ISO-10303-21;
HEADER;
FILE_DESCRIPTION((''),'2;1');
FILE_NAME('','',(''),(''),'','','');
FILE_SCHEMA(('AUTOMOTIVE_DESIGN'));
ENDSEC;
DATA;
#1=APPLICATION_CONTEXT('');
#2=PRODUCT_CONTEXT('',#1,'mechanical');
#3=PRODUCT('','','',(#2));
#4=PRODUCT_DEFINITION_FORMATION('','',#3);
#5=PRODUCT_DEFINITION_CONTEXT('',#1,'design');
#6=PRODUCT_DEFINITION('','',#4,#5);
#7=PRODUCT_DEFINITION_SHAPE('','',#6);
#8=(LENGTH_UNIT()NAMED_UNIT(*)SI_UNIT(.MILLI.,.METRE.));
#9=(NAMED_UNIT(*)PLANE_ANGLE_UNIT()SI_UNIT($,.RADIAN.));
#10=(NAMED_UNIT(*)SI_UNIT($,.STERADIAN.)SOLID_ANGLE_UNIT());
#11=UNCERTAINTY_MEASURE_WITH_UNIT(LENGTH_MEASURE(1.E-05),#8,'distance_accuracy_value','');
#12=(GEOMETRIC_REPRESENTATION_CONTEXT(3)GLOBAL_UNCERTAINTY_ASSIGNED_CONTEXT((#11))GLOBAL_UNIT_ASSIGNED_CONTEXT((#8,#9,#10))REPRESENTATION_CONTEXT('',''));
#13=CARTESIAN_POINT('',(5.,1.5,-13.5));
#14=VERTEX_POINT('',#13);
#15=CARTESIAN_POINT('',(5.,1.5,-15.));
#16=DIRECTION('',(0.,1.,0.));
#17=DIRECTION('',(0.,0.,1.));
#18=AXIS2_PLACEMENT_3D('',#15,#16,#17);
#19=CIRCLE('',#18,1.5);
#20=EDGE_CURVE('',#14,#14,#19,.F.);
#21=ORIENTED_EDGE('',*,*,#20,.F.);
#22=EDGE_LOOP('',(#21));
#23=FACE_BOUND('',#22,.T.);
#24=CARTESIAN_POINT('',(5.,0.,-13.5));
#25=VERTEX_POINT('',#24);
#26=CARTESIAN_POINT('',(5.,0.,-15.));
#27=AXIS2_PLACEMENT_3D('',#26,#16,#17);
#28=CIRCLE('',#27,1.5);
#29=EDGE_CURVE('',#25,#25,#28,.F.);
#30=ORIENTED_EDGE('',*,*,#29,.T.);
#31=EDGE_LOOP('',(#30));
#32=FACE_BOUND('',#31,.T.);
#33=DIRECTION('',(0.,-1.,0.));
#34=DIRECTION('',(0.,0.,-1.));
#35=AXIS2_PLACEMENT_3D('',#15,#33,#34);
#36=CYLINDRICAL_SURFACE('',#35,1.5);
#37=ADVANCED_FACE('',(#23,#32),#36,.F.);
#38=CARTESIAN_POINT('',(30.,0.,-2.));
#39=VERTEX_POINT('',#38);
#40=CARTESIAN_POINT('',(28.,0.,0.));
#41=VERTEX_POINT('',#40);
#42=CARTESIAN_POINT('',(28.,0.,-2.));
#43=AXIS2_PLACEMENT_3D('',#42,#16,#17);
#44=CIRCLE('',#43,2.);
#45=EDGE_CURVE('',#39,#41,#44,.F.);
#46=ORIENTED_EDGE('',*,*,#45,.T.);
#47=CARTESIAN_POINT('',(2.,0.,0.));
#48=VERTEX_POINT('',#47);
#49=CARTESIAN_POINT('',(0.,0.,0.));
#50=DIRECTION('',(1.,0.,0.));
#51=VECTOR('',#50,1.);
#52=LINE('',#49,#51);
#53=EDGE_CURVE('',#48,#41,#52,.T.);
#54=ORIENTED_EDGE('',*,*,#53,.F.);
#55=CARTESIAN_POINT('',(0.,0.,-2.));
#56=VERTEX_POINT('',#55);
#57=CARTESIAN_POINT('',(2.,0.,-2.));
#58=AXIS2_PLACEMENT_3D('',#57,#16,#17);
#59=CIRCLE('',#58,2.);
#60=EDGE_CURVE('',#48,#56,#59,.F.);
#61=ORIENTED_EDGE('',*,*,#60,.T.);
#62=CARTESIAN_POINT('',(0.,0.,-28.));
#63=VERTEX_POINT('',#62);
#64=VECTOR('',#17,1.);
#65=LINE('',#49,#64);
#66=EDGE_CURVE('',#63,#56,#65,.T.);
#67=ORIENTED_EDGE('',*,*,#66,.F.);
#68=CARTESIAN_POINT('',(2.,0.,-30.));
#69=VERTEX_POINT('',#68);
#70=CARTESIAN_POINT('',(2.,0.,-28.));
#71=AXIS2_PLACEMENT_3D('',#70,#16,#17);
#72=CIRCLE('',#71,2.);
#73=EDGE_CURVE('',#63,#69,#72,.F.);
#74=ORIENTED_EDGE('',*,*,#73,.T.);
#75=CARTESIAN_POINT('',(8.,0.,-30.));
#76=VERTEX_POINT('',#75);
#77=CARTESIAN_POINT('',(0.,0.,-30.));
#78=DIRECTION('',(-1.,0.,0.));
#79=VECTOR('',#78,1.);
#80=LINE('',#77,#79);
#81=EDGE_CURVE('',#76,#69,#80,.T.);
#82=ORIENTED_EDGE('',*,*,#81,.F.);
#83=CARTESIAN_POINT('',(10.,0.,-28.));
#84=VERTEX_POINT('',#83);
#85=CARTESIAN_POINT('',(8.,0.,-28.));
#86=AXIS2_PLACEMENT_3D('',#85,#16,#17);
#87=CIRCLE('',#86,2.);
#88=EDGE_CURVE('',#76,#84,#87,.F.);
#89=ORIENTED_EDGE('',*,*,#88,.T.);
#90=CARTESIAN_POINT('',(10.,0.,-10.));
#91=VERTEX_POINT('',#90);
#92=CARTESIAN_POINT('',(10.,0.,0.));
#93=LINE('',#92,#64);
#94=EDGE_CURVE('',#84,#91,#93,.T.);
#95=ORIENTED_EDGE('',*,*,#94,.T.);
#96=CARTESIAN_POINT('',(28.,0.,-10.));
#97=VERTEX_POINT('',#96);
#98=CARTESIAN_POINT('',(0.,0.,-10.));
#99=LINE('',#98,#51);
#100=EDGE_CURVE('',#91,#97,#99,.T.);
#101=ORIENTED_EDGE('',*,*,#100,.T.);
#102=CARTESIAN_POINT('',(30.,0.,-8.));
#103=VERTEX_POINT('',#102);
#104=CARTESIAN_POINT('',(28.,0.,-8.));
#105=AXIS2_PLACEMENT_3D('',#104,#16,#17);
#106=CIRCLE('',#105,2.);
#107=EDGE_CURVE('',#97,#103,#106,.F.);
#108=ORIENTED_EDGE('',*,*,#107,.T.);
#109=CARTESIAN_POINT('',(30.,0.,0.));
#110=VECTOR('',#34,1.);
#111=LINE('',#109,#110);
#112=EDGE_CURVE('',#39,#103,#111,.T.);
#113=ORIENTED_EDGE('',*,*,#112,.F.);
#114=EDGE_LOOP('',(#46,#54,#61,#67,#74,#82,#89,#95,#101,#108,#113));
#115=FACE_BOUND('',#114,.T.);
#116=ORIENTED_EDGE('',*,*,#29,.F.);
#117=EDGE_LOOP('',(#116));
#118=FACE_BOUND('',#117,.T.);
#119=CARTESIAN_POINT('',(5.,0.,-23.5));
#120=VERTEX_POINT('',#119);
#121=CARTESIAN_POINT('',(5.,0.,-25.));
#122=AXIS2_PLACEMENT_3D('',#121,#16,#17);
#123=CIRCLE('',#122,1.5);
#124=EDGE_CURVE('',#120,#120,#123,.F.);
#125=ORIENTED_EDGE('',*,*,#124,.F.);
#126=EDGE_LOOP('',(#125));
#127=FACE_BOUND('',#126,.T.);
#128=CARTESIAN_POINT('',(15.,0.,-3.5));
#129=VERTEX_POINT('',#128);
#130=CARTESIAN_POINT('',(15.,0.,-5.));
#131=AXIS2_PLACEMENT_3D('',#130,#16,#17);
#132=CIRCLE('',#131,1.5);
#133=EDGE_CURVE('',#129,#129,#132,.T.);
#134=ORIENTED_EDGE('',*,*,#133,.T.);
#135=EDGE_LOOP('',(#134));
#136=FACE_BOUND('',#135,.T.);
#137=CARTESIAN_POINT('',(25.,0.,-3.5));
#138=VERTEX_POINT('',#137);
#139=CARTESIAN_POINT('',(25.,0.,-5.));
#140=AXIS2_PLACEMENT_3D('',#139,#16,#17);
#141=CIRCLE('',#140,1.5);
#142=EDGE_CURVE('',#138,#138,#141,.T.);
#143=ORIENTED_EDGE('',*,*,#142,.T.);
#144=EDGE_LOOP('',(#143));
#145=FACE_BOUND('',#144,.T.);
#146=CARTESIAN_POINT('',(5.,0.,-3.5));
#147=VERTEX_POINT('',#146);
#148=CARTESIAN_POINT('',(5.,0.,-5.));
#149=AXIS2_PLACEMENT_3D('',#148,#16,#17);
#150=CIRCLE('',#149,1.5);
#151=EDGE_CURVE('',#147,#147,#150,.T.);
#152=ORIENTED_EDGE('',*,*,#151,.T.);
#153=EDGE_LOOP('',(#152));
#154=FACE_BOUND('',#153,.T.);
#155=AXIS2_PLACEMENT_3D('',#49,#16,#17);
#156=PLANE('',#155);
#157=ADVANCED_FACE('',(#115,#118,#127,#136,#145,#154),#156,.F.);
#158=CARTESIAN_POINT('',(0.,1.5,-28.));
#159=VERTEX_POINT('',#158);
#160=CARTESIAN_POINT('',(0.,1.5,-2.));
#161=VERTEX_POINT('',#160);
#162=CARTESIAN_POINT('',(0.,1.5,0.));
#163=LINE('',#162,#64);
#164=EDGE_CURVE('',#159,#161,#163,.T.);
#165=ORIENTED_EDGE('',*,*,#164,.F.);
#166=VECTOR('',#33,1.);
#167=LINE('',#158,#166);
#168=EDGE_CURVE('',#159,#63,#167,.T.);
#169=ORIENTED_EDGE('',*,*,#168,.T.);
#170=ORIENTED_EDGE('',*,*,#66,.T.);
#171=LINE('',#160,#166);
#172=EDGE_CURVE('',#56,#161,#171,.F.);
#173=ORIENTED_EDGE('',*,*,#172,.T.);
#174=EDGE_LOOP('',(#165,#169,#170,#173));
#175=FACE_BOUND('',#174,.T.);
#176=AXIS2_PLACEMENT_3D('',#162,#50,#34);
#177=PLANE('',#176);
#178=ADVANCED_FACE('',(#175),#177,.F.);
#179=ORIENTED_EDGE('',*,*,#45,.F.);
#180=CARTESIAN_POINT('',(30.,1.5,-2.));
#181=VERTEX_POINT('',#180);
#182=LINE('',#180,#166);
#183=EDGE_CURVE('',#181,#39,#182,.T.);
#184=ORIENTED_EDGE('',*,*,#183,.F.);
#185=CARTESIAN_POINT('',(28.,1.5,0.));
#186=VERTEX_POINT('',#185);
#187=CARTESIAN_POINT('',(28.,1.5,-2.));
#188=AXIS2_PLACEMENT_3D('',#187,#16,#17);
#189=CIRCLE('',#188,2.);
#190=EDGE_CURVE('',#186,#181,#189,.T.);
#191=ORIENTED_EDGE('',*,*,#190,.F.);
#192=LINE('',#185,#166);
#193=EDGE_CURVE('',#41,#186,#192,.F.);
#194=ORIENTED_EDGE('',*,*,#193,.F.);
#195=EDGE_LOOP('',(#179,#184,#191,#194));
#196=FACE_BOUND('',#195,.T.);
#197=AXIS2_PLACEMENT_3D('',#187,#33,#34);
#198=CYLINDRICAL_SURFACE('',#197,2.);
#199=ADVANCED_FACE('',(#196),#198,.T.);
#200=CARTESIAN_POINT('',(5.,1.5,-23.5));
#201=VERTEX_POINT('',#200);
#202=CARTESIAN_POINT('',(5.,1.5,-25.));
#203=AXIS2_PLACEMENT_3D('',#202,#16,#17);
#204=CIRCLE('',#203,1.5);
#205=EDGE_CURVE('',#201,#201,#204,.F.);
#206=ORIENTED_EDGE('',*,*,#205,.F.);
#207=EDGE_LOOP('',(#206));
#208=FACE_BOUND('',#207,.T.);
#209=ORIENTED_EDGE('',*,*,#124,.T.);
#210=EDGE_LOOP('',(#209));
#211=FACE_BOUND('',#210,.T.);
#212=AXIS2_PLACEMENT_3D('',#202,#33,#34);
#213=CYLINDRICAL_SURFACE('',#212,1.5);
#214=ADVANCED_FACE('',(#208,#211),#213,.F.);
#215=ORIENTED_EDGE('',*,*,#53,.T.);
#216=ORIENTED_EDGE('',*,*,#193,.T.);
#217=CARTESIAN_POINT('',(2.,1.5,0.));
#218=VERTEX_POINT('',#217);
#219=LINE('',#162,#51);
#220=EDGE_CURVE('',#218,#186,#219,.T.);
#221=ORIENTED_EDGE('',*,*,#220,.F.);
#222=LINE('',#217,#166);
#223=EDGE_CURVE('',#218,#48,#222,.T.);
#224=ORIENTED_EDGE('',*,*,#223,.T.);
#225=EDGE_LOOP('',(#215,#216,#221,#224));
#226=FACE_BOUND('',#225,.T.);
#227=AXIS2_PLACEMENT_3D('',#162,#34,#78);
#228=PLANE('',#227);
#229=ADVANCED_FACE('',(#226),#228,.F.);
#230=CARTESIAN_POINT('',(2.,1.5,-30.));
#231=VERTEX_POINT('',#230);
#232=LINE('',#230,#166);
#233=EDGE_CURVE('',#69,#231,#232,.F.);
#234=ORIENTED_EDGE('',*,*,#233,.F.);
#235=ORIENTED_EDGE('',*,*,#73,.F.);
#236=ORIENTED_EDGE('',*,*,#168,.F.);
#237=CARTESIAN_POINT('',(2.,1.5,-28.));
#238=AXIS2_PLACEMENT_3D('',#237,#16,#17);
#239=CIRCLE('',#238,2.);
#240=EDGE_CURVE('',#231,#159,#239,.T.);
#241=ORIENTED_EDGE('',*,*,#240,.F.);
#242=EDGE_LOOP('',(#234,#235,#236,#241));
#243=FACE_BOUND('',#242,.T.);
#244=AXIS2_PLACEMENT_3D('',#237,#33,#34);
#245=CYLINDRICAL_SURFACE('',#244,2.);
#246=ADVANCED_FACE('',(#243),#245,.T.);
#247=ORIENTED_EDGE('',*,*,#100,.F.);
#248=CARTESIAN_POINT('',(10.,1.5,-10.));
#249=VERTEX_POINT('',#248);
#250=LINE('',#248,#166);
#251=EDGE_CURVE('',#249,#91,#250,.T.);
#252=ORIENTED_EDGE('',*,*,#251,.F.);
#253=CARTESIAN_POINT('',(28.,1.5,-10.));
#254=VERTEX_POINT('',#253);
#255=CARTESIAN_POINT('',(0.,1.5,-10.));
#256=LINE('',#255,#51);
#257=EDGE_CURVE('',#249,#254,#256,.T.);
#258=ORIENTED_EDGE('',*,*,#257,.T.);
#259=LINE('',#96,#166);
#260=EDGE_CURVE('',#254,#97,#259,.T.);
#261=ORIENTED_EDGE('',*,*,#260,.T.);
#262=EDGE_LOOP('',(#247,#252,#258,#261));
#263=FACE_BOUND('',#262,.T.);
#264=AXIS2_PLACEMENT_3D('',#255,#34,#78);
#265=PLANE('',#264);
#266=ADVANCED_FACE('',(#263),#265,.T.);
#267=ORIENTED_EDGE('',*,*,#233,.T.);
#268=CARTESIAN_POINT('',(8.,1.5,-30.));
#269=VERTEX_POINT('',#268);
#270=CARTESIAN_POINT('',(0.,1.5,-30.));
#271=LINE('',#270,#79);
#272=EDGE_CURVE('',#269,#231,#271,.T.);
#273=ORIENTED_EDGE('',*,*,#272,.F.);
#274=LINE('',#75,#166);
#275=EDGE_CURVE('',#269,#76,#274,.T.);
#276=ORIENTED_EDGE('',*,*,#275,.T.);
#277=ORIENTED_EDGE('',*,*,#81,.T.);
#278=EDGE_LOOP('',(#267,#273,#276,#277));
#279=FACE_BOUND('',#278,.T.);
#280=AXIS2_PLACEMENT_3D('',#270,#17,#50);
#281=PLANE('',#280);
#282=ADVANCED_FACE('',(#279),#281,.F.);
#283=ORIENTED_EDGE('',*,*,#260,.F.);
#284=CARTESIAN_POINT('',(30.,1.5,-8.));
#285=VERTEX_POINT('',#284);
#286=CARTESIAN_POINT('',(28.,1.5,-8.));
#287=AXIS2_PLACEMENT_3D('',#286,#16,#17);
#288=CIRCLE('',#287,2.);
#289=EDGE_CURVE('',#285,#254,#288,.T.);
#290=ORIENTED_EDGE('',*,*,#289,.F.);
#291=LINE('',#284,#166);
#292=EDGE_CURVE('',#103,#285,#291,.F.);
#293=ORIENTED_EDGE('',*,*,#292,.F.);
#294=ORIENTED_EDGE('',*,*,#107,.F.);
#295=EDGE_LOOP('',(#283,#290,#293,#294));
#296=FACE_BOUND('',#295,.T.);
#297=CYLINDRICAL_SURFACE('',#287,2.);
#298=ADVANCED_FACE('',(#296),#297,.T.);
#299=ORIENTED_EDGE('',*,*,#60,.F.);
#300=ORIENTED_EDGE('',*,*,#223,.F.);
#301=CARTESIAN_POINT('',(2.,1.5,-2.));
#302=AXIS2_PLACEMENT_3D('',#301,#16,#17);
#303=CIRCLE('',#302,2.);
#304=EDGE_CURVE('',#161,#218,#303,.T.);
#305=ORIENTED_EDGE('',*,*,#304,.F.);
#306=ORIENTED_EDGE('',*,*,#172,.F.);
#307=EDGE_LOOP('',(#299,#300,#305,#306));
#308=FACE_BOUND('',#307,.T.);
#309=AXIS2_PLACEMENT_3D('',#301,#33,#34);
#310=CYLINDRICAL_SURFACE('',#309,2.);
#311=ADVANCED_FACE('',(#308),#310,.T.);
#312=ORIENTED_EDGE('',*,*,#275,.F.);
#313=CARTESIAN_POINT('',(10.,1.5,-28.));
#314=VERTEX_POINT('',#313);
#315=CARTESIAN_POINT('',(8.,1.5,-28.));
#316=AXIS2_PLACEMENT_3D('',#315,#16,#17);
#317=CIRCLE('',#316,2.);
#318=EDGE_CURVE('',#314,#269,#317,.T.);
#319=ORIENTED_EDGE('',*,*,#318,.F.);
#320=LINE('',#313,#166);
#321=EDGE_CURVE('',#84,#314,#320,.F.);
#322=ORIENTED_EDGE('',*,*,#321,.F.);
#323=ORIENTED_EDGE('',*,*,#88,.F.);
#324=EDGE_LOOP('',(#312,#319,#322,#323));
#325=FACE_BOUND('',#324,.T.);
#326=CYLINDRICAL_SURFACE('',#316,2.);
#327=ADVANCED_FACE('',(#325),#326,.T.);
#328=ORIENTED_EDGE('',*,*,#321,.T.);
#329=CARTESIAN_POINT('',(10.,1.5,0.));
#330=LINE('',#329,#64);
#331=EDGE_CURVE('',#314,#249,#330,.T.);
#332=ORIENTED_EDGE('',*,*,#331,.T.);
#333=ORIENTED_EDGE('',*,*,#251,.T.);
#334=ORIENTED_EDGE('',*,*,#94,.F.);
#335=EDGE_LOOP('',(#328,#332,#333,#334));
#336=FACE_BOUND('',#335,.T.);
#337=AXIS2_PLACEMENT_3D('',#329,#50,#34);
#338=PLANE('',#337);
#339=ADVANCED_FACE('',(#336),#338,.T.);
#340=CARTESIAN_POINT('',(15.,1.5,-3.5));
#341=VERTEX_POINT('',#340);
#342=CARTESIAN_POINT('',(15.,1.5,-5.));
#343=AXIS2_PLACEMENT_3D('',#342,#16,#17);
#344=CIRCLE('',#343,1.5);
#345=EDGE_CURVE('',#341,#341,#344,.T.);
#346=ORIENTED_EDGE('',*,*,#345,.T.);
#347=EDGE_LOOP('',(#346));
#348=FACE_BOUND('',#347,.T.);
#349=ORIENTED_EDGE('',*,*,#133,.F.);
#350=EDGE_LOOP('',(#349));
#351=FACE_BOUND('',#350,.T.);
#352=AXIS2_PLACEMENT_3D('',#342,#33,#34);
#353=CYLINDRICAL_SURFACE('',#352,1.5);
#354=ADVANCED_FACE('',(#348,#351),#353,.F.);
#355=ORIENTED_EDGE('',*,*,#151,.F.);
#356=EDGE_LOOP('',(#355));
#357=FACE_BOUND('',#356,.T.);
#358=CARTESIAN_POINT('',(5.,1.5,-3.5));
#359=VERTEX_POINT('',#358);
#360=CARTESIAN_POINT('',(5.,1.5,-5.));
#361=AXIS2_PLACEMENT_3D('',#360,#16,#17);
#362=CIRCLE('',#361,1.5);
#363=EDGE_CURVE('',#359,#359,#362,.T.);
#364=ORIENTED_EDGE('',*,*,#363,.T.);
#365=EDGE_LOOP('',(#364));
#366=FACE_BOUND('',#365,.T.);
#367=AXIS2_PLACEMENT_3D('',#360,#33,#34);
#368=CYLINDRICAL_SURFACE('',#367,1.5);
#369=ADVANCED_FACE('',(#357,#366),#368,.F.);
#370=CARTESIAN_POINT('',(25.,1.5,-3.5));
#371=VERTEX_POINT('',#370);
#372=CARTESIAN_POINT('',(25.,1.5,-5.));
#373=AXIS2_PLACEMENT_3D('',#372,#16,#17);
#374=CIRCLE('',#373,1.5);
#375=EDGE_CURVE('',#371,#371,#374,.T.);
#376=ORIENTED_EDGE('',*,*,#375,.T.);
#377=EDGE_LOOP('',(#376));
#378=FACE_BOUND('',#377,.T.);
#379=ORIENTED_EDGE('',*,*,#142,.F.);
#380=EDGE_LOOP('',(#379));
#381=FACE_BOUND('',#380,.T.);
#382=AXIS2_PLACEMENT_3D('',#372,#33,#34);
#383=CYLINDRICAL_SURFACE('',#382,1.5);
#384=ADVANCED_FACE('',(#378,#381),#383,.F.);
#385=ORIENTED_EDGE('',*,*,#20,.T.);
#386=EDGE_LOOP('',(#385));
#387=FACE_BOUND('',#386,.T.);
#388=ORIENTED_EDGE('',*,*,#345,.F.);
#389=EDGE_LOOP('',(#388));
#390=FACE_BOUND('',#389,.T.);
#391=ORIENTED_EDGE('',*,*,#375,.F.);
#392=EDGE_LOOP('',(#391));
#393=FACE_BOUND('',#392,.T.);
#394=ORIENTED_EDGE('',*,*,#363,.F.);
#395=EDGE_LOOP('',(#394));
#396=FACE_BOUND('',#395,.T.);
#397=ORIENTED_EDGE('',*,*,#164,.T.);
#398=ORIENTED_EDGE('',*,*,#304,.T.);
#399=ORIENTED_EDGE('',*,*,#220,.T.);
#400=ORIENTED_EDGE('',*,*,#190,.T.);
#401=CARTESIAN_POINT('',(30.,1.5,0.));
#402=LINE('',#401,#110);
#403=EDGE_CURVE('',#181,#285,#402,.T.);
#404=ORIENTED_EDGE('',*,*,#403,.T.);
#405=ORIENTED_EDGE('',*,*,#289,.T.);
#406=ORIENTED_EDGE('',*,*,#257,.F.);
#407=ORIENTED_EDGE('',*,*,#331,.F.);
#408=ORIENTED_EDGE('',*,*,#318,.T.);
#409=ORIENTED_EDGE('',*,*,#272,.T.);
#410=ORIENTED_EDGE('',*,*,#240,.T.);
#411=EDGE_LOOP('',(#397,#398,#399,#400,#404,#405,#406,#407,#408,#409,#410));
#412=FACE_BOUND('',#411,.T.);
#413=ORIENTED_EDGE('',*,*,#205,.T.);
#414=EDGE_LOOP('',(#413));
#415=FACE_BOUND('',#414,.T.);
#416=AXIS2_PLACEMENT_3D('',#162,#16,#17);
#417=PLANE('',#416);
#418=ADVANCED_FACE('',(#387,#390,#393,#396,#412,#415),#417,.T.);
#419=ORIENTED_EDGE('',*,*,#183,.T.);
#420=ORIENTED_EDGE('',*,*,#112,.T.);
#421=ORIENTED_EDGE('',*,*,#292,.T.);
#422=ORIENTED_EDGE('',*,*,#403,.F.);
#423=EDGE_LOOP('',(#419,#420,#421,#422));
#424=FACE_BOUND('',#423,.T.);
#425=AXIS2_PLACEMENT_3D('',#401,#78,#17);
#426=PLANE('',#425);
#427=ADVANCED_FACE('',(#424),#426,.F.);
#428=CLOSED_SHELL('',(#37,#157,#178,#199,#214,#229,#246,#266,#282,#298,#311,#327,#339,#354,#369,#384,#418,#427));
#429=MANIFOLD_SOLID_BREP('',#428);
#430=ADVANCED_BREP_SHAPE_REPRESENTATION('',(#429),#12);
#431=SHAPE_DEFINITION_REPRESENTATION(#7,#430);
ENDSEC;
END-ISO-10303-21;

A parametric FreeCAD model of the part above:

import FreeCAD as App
import Part
import Sketcher

V = App.Vector


def edges_at(feature, points):
    """Names of the edges that pass closest to the given points."""
    edges = feature.Shape.Edges
    near = lambda p: min(range(len(edges)), key=lambda i: edges[i].distToShape(Part.Vertex(*p))[0])
    return sorted({f"Edge{near(p) + 1}" for p in points})


def add_polygon(sketch, points):
    """Adds a closed chain of lines whose ends are joined by coincident constraints."""
    first, n = sketch.GeometryCount, len(points)
    for a, b in zip(points, points[1:] + points[:1]):
        sketch.addGeometry(Part.LineSegment(App.Vector(*a, 0), App.Vector(*b, 0)), False)
    for i in range(n):
        sketch.addConstraint(Sketcher.Constraint("Coincident", first + i, 2, first + (i + 1) % n, 1))

doc = App.newDocument("Part")
body = doc.addObject("PartDesign::Body", "Body")

# Sketch on XZ plane
sketch1 = body.newObject("Sketcher::SketchObject", "Sketch")
sketch1.AttachmentSupport = (doc.getObject("XZ_Plane"), [""])
sketch1.MapMode = "FlatFace"
add_polygon(sketch1, [(30, -10), (10, -10), (10, -30), (0, -30), (0, 0), (30, 0)])  # lines 0-5
sketch1.addGeometry(Part.Circle(V(25, -5, 0), V(0, 0, 1), 1.5), False)  # 6
sketch1.addGeometry(Part.Circle(V(15, -5, 0), V(0, 0, 1), 1.5), False)  # 7
sketch1.addGeometry(Part.Circle(V(5, -5, 0), V(0, 0, 1), 1.5), False)  # 8
sketch1.addGeometry(Part.Circle(V(5, -15, 0), V(0, 0, 1), 1.5), False)  # 9
sketch1.addGeometry(Part.Circle(V(5, -25, 0), V(0, 0, 1), 1.5), False)  # 10
sketch1.addConstraint(Sketcher.Constraint("Horizontal", 0))
sketch1.addConstraint(Sketcher.Constraint("Vertical", 1))
sketch1.addConstraint(Sketcher.Constraint("Horizontal", 2))
sketch1.addConstraint(Sketcher.Constraint("Vertical", 3))
sketch1.addConstraint(Sketcher.Constraint("Horizontal", 4))
sketch1.addConstraint(Sketcher.Constraint("Vertical", 5))
sketch1.addConstraint(Sketcher.Constraint("Coincident", 3, 2, -1, 1))
sketch1.addConstraint(Sketcher.Constraint("Equal", 6, 7))
sketch1.addConstraint(Sketcher.Constraint("Equal", 7, 8))
sketch1.addConstraint(Sketcher.Constraint("Equal", 8, 9))
sketch1.addConstraint(Sketcher.Constraint("Equal", 9, 10))
sketch1.addConstraint(Sketcher.Constraint("Horizontal", 6, 3, 7, 3))
sketch1.addConstraint(Sketcher.Constraint("Horizontal", 7, 3, 8, 3))
sketch1.addConstraint(Sketcher.Constraint("Vertical", 8, 3, 9, 3))
sketch1.addConstraint(Sketcher.Constraint("Vertical", 9, 3, 10, 3))
sketch1.addConstraint(Sketcher.Constraint("Equal", 0, 1))
sketch1.addConstraint(Sketcher.Constraint("Equal", 4, 3))
sketch1.addConstraint(Sketcher.Constraint("Diameter", 6, 3.0))
sketch1.addConstraint(Sketcher.Constraint("DistanceX", 0, 2, 0, 1, 20.0))
sketch1.addConstraint(Sketcher.Constraint("DistanceX", 2, 2, 2, 1, 10.0))
sketch1.addConstraint(Sketcher.Constraint("DistanceX", -1, 1, 6, 3, 25.0))
sketch1.addConstraint(Sketcher.Constraint("DistanceY", 6, 3, -1, 1, 5.0))
sketch1.addConstraint(Sketcher.Constraint("DistanceX", -1, 1, 7, 3, 15.0))
sketch1.addConstraint(Sketcher.Constraint("DistanceX", -1, 1, 8, 3, 5.0))
sketch1.addConstraint(Sketcher.Constraint("DistanceY", 9, 3, -1, 1, 15.0))
sketch1.addConstraint(Sketcher.Constraint("DistanceY", 10, 3, -1, 1, 25.0))
pad1 = body.newObject("PartDesign::Pad", "Pad")
pad1.Profile = sketch1
pad1.Length = 1.5
pad1.Reversed = True
doc.recompute()

fillet = body.newObject("PartDesign::Fillet", "Fillet")
fillet.Base = (pad1, edges_at(pad1, [
    (30, 0.75, -10),
    (30, 0.75, 0),
    (0, 0.75, 0),
    (0, 0.75, -30),
    (10, 0.75, -30),
]))
fillet.Radius = 2

doc.recompute()
